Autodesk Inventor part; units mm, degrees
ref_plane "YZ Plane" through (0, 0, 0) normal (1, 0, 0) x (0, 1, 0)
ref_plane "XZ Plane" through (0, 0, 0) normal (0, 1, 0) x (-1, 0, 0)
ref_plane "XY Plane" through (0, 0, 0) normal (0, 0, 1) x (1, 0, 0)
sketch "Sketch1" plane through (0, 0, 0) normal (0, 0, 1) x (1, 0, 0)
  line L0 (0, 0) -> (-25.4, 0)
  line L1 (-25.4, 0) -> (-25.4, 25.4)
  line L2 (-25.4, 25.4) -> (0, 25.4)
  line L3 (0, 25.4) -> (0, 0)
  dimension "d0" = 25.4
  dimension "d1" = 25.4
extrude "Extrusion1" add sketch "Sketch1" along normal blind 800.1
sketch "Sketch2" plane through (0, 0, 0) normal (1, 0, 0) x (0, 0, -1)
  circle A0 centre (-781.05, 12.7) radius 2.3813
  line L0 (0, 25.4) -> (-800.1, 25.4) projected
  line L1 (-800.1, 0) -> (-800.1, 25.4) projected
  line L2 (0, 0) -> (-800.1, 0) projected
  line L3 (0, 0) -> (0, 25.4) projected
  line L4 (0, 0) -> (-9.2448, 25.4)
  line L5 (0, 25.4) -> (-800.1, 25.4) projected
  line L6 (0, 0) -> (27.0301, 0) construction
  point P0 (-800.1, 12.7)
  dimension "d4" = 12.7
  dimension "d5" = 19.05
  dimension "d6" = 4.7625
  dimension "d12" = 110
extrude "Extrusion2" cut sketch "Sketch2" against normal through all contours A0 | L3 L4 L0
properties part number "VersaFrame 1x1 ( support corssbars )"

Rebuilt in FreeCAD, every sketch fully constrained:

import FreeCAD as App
import Part
import Sketcher

V = App.Vector
Q = App.Units.Quantity

doc = App.newDocument("Part")
body = doc.addObject("PartDesign::Body", "Body")

# Sketch on XY plane
sketch1 = body.newObject("Sketcher::SketchObject", "Sketch")
sketch1.AttachmentSupport = (doc.getObject("XY_Plane"), [""])
sketch1.MapMode = "FlatFace"
sketch1.addGeometry([
    Part.LineSegment(V(-25.4, 0, 0), V(0, 0, 0)),
    Part.LineSegment(V(0, 0, 0), V(0, 25.4, 0)),
    Part.LineSegment(V(0, 25.4, 0), V(-25.4, 25.4, 0)),
    Part.LineSegment(V(-25.4, 25.4, 0), V(-25.4, 0, 0)),
], False)
sketch1.addConstraint([
    Sketcher.Constraint("Coincident", 0, 2, 1, 1),
    Sketcher.Constraint("Coincident", 1, 2, 2, 1),
    Sketcher.Constraint("Coincident", 2, 2, 3, 1),
    Sketcher.Constraint("Coincident", 3, 2, 0, 1),
    Sketcher.Constraint("Horizontal", 0),
    Sketcher.Constraint("Vertical", 1),
    Sketcher.Constraint("Horizontal", 2),
    Sketcher.Constraint("Vertical", 3),
    Sketcher.Constraint("Coincident", 0, 2, -1, 1),
    Sketcher.Constraint("Equal", 2, 1),
    Sketcher.Constraint("DistanceX", 0, 1, 0, 2, Q("1 in")),
])
pad1 = body.newObject("PartDesign::Pad", "Pad")
pad1.Profile = sketch1
pad1.Length = Q("31.5 in")

# Sketch on YZ plane
sketch2 = body.newObject("Sketcher::SketchObject", "Sketch001")
sketch2.AttachmentSupport = (doc.getObject("YZ_Plane"), [""])
sketch2.MapMode = "FlatFace"
sketch2.addGeometry([
    Part.Circle(V(12.7, 781.05, 0), V(0, 0, 1), 2.3813),
    Part.LineSegment(V(0, 0, 0), V(25.4, 0, 0)),
    Part.LineSegment(V(25.4, 0, 0), V(25.4, 9.2448, 0)),
    Part.LineSegment(V(25.4, 9.2448, 0), V(0, 0, 0)),
], False)
sketch2.addConstraint([
    Sketcher.Constraint("Coincident", 1, 2, 2, 1),
    Sketcher.Constraint("Coincident", 2, 2, 3, 1),
    Sketcher.Constraint("Coincident", 3, 2, 1, 1),
    Sketcher.Constraint("Horizontal", 1),
    Sketcher.Constraint("Vertical", 2),
    Sketcher.Constraint("Coincident", 3, 2, -1, 1),
    Sketcher.Constraint("Diameter", 0, Q("0.1875 in")),
    Sketcher.Constraint("DistanceX", -1, 1, 0, 3, Q("0.5 in")),
    Sketcher.Constraint("DistanceX", 0, 3, 1, 2, Q("0.5 in")),
    Sketcher.Constraint("Angle", 3, Q("-160 deg")),
    Sketcher.Constraint("DistanceY", -1, 1, 0, 3, Q("30.75 in")),
])
pocket1 = body.newObject("PartDesign::Pocket", "Pocket")
pocket1.Profile = sketch2
pocket1.Type = "ThroughAll"

doc.recompute()
